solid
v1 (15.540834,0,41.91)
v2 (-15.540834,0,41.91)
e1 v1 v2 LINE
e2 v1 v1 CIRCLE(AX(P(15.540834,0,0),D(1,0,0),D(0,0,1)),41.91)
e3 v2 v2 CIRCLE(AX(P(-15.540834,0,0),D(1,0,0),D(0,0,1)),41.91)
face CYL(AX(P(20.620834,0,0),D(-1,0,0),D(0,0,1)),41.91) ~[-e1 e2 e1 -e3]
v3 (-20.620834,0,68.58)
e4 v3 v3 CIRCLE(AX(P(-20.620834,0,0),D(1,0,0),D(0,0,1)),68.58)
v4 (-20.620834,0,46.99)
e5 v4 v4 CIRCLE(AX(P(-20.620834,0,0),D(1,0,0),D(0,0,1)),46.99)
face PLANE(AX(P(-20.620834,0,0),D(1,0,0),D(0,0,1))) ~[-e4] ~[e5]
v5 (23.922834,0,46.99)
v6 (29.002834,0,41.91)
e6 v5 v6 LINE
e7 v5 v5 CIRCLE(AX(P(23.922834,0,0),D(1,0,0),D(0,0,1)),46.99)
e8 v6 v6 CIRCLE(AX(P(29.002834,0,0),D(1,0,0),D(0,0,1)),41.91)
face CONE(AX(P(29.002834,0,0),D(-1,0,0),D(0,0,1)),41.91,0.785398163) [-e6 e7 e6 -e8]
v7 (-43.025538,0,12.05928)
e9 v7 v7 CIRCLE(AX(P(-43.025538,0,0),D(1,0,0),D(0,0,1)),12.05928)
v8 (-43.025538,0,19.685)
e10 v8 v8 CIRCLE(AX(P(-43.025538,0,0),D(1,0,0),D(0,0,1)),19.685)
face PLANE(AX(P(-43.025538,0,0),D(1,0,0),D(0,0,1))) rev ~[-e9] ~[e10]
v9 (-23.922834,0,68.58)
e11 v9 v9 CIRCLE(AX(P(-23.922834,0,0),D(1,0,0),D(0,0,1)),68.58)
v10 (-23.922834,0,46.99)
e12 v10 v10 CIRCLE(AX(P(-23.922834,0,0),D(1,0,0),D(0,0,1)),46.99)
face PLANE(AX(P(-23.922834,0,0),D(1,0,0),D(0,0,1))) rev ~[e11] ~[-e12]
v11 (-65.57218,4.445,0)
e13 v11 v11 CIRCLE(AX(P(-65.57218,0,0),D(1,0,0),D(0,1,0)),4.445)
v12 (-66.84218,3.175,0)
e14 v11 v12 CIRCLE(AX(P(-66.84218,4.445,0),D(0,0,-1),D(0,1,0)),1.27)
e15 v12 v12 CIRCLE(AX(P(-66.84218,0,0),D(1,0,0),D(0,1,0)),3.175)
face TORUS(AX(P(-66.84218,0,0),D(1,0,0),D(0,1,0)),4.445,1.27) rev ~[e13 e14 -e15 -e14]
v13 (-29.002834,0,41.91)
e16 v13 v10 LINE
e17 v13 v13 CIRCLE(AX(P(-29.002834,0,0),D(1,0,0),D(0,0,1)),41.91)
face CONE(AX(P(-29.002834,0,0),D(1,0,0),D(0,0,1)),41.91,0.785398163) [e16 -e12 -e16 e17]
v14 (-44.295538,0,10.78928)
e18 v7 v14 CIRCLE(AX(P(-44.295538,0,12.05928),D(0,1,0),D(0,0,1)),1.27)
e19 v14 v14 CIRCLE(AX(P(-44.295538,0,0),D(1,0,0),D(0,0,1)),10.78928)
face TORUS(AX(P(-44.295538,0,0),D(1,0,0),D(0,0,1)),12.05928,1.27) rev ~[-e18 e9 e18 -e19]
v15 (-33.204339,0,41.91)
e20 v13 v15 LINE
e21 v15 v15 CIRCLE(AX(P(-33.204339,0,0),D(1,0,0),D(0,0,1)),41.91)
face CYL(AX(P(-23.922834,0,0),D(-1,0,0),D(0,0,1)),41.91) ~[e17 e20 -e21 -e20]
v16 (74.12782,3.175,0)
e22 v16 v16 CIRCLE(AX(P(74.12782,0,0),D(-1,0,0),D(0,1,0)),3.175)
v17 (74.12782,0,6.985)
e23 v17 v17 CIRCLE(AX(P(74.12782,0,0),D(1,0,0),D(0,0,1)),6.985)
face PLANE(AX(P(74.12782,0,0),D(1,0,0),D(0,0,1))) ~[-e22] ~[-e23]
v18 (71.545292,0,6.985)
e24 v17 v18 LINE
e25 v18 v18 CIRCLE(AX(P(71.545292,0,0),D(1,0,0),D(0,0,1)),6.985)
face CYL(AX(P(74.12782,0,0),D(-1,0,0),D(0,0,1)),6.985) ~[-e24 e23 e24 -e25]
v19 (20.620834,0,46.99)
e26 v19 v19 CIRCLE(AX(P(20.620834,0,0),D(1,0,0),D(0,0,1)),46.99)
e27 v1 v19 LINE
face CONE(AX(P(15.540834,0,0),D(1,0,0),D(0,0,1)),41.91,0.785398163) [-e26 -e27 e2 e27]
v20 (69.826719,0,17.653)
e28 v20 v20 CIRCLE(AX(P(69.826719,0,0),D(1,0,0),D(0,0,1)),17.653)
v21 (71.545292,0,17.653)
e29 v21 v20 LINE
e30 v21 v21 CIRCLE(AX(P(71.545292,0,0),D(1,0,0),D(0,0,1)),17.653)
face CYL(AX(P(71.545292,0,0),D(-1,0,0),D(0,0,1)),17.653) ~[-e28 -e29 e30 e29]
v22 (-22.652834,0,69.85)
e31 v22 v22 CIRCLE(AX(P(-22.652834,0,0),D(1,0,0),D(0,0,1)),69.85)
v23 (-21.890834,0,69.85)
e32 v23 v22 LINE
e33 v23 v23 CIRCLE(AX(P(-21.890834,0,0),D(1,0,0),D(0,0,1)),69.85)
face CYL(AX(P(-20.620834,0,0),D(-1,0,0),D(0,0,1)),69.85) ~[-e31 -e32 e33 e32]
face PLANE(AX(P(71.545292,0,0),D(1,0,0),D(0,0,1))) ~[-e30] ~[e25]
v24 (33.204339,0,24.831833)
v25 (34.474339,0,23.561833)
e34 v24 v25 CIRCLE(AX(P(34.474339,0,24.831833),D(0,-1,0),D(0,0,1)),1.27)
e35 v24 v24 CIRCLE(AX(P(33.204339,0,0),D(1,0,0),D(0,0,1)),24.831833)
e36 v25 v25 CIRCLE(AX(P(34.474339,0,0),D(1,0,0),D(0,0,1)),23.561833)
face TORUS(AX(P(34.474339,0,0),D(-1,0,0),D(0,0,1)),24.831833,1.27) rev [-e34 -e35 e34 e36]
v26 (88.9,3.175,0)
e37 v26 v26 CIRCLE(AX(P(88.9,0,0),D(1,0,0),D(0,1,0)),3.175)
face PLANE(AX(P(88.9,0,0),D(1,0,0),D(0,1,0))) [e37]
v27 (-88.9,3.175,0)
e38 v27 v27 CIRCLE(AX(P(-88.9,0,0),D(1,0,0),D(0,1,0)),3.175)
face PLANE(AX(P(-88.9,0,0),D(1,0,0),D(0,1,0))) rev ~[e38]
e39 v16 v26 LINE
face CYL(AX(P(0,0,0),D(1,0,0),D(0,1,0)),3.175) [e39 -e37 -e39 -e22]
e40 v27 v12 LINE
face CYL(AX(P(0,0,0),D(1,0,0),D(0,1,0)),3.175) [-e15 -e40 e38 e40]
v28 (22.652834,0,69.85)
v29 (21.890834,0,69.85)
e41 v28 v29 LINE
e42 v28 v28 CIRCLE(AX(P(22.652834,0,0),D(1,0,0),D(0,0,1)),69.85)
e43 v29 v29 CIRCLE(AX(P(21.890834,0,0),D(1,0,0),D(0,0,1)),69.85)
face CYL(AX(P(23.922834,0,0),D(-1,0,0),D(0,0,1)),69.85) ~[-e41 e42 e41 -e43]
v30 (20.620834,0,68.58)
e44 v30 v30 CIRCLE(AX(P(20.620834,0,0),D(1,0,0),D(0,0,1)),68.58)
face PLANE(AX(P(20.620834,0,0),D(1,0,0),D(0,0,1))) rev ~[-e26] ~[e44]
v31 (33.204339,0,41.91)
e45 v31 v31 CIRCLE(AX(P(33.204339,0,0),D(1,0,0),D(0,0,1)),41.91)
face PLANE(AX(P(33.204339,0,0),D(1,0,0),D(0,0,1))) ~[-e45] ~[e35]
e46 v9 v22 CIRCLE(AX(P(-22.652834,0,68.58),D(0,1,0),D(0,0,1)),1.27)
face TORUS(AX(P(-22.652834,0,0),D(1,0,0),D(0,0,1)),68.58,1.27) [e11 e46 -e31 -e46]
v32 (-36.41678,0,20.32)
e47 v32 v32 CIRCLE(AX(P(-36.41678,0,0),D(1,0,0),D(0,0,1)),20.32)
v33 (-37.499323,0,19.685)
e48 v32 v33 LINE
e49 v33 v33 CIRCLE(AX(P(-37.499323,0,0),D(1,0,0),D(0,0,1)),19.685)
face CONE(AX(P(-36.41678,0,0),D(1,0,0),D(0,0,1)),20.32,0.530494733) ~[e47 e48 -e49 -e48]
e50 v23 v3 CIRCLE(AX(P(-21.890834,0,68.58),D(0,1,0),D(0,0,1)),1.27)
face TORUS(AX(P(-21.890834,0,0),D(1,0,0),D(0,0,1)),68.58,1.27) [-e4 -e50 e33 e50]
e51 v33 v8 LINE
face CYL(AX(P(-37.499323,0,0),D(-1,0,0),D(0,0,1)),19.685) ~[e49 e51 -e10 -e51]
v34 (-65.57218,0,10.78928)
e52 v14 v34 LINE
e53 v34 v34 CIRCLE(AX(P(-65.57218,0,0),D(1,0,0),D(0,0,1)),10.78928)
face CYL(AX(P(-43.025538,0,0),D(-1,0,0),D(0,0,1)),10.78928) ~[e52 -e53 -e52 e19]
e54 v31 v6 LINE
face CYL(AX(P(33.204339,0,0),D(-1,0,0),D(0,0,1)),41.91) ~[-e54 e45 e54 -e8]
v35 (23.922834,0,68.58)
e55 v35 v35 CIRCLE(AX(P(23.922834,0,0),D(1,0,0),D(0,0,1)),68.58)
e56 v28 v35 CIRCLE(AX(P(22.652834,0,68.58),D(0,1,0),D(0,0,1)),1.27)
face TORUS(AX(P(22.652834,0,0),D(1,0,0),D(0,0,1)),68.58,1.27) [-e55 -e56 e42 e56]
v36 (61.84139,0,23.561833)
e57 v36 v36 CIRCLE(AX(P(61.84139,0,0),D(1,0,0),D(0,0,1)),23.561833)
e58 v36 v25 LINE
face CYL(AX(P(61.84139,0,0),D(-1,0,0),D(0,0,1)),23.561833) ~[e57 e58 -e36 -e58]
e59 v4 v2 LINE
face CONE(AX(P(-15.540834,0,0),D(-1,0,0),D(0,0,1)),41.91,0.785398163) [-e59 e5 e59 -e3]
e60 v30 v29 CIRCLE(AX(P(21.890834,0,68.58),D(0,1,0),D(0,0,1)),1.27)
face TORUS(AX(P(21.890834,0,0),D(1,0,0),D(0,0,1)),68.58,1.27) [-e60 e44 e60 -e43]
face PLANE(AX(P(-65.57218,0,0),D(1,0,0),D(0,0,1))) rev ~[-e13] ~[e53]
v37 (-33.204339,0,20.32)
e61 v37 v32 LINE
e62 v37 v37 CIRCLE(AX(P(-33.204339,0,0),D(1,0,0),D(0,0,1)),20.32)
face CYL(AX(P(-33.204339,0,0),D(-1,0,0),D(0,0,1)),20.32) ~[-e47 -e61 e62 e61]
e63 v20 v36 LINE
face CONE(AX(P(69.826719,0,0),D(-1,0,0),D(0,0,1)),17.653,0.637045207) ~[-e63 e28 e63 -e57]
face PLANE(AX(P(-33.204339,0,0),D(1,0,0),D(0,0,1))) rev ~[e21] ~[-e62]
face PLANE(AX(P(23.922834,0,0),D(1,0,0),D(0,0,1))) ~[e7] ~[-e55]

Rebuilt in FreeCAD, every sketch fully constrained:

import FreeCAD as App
import Part
import Sketcher
Q = App.Units.Quantity


def edges_at(feature, points):
    """Names of the edges that pass closest to the given points."""
    edges = feature.Shape.Edges
    near = lambda p: min(range(len(edges)), key=lambda i: edges[i].distToShape(Part.Vertex(*p))[0])
    return sorted({f"Edge{near(p) + 1}" for p in points})

doc = App.newDocument("Part")
body = doc.addObject("PartDesign::Body", "Body")

# Sketch on YZ plane
sketch1 = doc.addObject("Sketcher::SketchObject", "Sketch")
body.addObject(sketch1)
sketch1.AttachmentSupport = (doc.YZ_Plane, [""])
sketch1.MapMode = "FlatFace"
sketch1.addGeometry(Part.Circle(App.Vector(0, 0, 0), App.Vector(0, 0, 1), 3.175), False)
sketch1.addConstraint([
    Sketcher.Constraint("Coincident", 0, 3, -1, 1),
    Sketcher.Constraint("Diameter", 0, Q("0.25 in")),
])
pad1 = doc.addObject("PartDesign::Pad", "Pad")
body.addObject(pad1)
pad1.Profile = sketch1
pad1.Length = Q("7 in")
pad1.Midplane = True

# Sketch on XZ plane
sketch2 = doc.addObject("Sketcher::SketchObject", "Sketch001")
body.addObject(sketch2)
sketch2.AttachmentSupport = (doc.XZ_Plane, [""])
sketch2.MapMode = "FlatFace"
sketch2.addGeometry([
    Part.LineSegment(App.Vector(-65.57218, 10.78928, 0), App.Vector(-65.57218, 3.175, 0)),  # 0
    Part.LineSegment(App.Vector(-65.57218, 3.175, 0), App.Vector(74.12782, 3.175, 0)),  # 1
    Part.LineSegment(App.Vector(74.12782, 3.175, 0), App.Vector(74.12782, 6.985, 0)),  # 2
    Part.LineSegment(App.Vector(74.12782, 6.985, 0), App.Vector(71.545292, 6.985, 0)),  # 3
    Part.LineSegment(App.Vector(71.545292, 6.985, 0), App.Vector(71.545292, 17.653, 0)),  # 4
    Part.LineSegment(App.Vector(71.545292, 17.653, 0), App.Vector(69.826719, 17.653, 0)),  # 5
    Part.LineSegment(App.Vector(69.826719, 17.653, 0), App.Vector(61.84139, 23.561833, 0)),  # 6
    Part.LineSegment(App.Vector(61.84139, 23.561833, 0), App.Vector(33.204339, 23.561833, 0)),  # 7
    Part.LineSegment(App.Vector(33.204339, 23.561833, 0), App.Vector(33.204339, 41.91, 0)),  # 8
    Part.LineSegment(App.Vector(33.204339, 41.91, 0), App.Vector(23.922834, 41.91, 0)),  # 9
    Part.LineSegment(App.Vector(23.922834, 41.91, 0), App.Vector(23.922834, 69.85, 0)),  # 10
    Part.LineSegment(App.Vector(23.922834, 69.85, 0), App.Vector(20.620834, 69.85, 0)),  # 11
    Part.LineSegment(App.Vector(20.620834, 69.85, 0), App.Vector(20.620834, 41.91, 0)),  # 12
    Part.LineSegment(App.Vector(20.620834, 41.91, 0), App.Vector(-20.620834, 41.91, 0)),  # 13
    Part.LineSegment(App.Vector(-20.620834, 41.91, 0), App.Vector(-20.620834, 69.85, 0)),  # 14
    Part.LineSegment(App.Vector(-20.620834, 69.85, 0), App.Vector(-23.922834, 69.85, 0)),  # 15
    Part.LineSegment(App.Vector(-23.922834, 69.85, 0), App.Vector(-23.922834, 41.91, 0)),  # 16
    Part.LineSegment(App.Vector(-23.922834, 41.91, 0), App.Vector(-33.204339, 41.91, 0)),  # 17
    Part.LineSegment(App.Vector(-33.204339, 41.91, 0), App.Vector(-33.204339, 20.32, 0)),  # 18
    Part.LineSegment(App.Vector(-33.204339, 20.32, 0), App.Vector(-36.41678, 20.32, 0)),  # 19
    Part.LineSegment(App.Vector(-36.41678, 20.32, 0), App.Vector(-37.499323, 19.685, 0)),  # 20
    Part.LineSegment(App.Vector(-37.499323, 19.685, 0), App.Vector(-43.025538, 19.685, 0)),  # 21
    Part.LineSegment(App.Vector(-43.025538, 19.685, 0), App.Vector(-43.025538, 10.78928, 0)),  # 22
    Part.LineSegment(App.Vector(-43.025538, 10.78928, 0), App.Vector(-65.57218, 10.78928, 0)),  # 23
], False)
sketch2.addConstraint([
    Sketcher.Constraint("Coincident", 0, 2, 1, 1),
    Sketcher.Constraint("Coincident", 1, 2, 2, 1),
    Sketcher.Constraint("Coincident", 2, 2, 3, 1),
    Sketcher.Constraint("Coincident", 3, 2, 4, 1),
    Sketcher.Constraint("Coincident", 4, 2, 5, 1),
    Sketcher.Constraint("Coincident", 5, 2, 6, 1),
    Sketcher.Constraint("Coincident", 6, 2, 7, 1),
    Sketcher.Constraint("Coincident", 7, 2, 8, 1),
    Sketcher.Constraint("Coincident", 8, 2, 9, 1),
    Sketcher.Constraint("Coincident", 9, 2, 10, 1),
    Sketcher.Constraint("Coincident", 10, 2, 11, 1),
    Sketcher.Constraint("Coincident", 11, 2, 12, 1),
    Sketcher.Constraint("Coincident", 12, 2, 13, 1),
    Sketcher.Constraint("Coincident", 13, 2, 14, 1),
    Sketcher.Constraint("Coincident", 14, 2, 15, 1),
    Sketcher.Constraint("Coincident", 15, 2, 16, 1),
    Sketcher.Constraint("Coincident", 16, 2, 17, 1),
    Sketcher.Constraint("Coincident", 17, 2, 18, 1),
    Sketcher.Constraint("Coincident", 18, 2, 19, 1),
    Sketcher.Constraint("Coincident", 19, 2, 20, 1),
    Sketcher.Constraint("Coincident", 20, 2, 21, 1),
    Sketcher.Constraint("Coincident", 21, 2, 22, 1),
    Sketcher.Constraint("Coincident", 22, 2, 23, 1),
    Sketcher.Constraint("Coincident", 23, 2, 0, 1),
    Sketcher.Constraint("Vertical", 0),
    Sketcher.Constraint("Horizontal", 1),
    Sketcher.Constraint("Vertical", 2),
    Sketcher.Constraint("Horizontal", 3),
    Sketcher.Constraint("Vertical", 4),
    Sketcher.Constraint("Horizontal", 5),
    Sketcher.Constraint("Horizontal", 7),
    Sketcher.Constraint("Vertical", 8),
    Sketcher.Constraint("Horizontal", 9),
    Sketcher.Constraint("Vertical", 10),
    Sketcher.Constraint("Horizontal", 11),
    Sketcher.Constraint("Vertical", 12),
    Sketcher.Constraint("Horizontal", 13),
    Sketcher.Constraint("Vertical", 14),
    Sketcher.Constraint("Horizontal", 15),
    Sketcher.Constraint("Vertical", 16),
    Sketcher.Constraint("Horizontal", 17),
    Sketcher.Constraint("Vertical", 18),
    Sketcher.Constraint("Horizontal", 19),
    Sketcher.Constraint("Horizontal", 21),
    Sketcher.Constraint("Vertical", 22),
    Sketcher.Constraint("Horizontal", 23),
    Sketcher.Constraint("Symmetric", 11, 2, 14, 2, -2),
    Sketcher.Constraint("Symmetric", 9, 2, 16, 2, -2),
    Sketcher.Constraint("Horizontal", 9, 2, 12, 2),
    Sketcher.Constraint("Equal", 9, 17),
    Sketcher.Constraint("DistanceX", 1, 1, 1, 2, Q("5.5 in")),
    Sketcher.Constraint("DistanceY", 10, 1, 10, 2, Q("1.1 in")),
    Sketcher.Constraint("DistanceX", 11, 2, 11, 1, Q("0.13 in")),
    Sketcher.Constraint("DistanceY", 2, 1, 2, 2, Q("0.15 in")),
    Sketcher.Constraint("DistanceY", 4, 1, 4, 2, Q("0.42 in")),
    Sketcher.Constraint("DistanceY", 18, 2, 18, 1, Q("0.85 in")),
    Sketcher.Constraint("DistanceY", -1, 1, 18, 2, Q("0.8 in")),
    Sketcher.Constraint("Angle", 6, Q("143.499998 deg")),
    Sketcher.Constraint("DistanceY", 0, 2, 21, 2, Q("0.65 in")),
    Sketcher.Constraint("DistanceY", -1, 1, 0, 2, Q("0.125 in")),
    Sketcher.Constraint("DistanceX", 9, 2, 4, 2, Q("1.8748999 in")),
    Sketcher.Constraint("DistanceX", 7, 2, 7, 1, 28.637051),
    Sketcher.Constraint("DistanceX", 19, 2, 19, 1, 3.212441),
    Sketcher.Constraint("DistanceY", 0, 2, 0, 1, 7.61428),
    Sketcher.Constraint("DistanceX", 5, 2, 2, 2, 4.301101),
    Sketcher.Constraint("DistanceX", 0, 2, 19, 2, 29.1554),
    Sketcher.Constraint("DistanceX", 21, 2, 18, 2, 9.821199),
    Sketcher.Constraint("Distance", 6, 9.93377),
    Sketcher.Constraint("Distance", 20, 1.25504),
    Sketcher.Constraint("DistanceX", 3, 2, 3, 1, 2.582528),
])
revolution = doc.addObject("PartDesign::Revolution", "Revolution")
body.addObject(revolution)
revolution.Profile = sketch2
revolution.ReferenceAxis = (sketch2, ["H_Axis"])
revolution.Angle = 360
doc.recompute()

chamfer = doc.addObject("PartDesign::Chamfer", "Chamfer")
body.addObject(chamfer)
chamfer.Base = (revolution, edges_at(revolution, [
    (-20.621, 0, -41.91),
    (23.923, 0, -41.91),
    (20.621, 0, -41.91),
    (-23.923, 0, -41.91),
]))
chamfer.Size = Q("0.2 in")
doc.recompute()

fillet = doc.addObject("PartDesign::Fillet", "Fillet")
body.addObject(fillet)
fillet.Base = (chamfer, edges_at(chamfer, [
    (33.204, 0, -23.562),
    (-43.026, 0, -10.789),
    (-65.572, -3.175, 0),
    (-23.923, 0, -69.85),
    (-20.621, 0, -69.85),
    (20.621, 0, -69.85),
    (23.923, 0, -69.85),
]))
fillet.Radius = Q("0.05 in")

doc.recompute()
